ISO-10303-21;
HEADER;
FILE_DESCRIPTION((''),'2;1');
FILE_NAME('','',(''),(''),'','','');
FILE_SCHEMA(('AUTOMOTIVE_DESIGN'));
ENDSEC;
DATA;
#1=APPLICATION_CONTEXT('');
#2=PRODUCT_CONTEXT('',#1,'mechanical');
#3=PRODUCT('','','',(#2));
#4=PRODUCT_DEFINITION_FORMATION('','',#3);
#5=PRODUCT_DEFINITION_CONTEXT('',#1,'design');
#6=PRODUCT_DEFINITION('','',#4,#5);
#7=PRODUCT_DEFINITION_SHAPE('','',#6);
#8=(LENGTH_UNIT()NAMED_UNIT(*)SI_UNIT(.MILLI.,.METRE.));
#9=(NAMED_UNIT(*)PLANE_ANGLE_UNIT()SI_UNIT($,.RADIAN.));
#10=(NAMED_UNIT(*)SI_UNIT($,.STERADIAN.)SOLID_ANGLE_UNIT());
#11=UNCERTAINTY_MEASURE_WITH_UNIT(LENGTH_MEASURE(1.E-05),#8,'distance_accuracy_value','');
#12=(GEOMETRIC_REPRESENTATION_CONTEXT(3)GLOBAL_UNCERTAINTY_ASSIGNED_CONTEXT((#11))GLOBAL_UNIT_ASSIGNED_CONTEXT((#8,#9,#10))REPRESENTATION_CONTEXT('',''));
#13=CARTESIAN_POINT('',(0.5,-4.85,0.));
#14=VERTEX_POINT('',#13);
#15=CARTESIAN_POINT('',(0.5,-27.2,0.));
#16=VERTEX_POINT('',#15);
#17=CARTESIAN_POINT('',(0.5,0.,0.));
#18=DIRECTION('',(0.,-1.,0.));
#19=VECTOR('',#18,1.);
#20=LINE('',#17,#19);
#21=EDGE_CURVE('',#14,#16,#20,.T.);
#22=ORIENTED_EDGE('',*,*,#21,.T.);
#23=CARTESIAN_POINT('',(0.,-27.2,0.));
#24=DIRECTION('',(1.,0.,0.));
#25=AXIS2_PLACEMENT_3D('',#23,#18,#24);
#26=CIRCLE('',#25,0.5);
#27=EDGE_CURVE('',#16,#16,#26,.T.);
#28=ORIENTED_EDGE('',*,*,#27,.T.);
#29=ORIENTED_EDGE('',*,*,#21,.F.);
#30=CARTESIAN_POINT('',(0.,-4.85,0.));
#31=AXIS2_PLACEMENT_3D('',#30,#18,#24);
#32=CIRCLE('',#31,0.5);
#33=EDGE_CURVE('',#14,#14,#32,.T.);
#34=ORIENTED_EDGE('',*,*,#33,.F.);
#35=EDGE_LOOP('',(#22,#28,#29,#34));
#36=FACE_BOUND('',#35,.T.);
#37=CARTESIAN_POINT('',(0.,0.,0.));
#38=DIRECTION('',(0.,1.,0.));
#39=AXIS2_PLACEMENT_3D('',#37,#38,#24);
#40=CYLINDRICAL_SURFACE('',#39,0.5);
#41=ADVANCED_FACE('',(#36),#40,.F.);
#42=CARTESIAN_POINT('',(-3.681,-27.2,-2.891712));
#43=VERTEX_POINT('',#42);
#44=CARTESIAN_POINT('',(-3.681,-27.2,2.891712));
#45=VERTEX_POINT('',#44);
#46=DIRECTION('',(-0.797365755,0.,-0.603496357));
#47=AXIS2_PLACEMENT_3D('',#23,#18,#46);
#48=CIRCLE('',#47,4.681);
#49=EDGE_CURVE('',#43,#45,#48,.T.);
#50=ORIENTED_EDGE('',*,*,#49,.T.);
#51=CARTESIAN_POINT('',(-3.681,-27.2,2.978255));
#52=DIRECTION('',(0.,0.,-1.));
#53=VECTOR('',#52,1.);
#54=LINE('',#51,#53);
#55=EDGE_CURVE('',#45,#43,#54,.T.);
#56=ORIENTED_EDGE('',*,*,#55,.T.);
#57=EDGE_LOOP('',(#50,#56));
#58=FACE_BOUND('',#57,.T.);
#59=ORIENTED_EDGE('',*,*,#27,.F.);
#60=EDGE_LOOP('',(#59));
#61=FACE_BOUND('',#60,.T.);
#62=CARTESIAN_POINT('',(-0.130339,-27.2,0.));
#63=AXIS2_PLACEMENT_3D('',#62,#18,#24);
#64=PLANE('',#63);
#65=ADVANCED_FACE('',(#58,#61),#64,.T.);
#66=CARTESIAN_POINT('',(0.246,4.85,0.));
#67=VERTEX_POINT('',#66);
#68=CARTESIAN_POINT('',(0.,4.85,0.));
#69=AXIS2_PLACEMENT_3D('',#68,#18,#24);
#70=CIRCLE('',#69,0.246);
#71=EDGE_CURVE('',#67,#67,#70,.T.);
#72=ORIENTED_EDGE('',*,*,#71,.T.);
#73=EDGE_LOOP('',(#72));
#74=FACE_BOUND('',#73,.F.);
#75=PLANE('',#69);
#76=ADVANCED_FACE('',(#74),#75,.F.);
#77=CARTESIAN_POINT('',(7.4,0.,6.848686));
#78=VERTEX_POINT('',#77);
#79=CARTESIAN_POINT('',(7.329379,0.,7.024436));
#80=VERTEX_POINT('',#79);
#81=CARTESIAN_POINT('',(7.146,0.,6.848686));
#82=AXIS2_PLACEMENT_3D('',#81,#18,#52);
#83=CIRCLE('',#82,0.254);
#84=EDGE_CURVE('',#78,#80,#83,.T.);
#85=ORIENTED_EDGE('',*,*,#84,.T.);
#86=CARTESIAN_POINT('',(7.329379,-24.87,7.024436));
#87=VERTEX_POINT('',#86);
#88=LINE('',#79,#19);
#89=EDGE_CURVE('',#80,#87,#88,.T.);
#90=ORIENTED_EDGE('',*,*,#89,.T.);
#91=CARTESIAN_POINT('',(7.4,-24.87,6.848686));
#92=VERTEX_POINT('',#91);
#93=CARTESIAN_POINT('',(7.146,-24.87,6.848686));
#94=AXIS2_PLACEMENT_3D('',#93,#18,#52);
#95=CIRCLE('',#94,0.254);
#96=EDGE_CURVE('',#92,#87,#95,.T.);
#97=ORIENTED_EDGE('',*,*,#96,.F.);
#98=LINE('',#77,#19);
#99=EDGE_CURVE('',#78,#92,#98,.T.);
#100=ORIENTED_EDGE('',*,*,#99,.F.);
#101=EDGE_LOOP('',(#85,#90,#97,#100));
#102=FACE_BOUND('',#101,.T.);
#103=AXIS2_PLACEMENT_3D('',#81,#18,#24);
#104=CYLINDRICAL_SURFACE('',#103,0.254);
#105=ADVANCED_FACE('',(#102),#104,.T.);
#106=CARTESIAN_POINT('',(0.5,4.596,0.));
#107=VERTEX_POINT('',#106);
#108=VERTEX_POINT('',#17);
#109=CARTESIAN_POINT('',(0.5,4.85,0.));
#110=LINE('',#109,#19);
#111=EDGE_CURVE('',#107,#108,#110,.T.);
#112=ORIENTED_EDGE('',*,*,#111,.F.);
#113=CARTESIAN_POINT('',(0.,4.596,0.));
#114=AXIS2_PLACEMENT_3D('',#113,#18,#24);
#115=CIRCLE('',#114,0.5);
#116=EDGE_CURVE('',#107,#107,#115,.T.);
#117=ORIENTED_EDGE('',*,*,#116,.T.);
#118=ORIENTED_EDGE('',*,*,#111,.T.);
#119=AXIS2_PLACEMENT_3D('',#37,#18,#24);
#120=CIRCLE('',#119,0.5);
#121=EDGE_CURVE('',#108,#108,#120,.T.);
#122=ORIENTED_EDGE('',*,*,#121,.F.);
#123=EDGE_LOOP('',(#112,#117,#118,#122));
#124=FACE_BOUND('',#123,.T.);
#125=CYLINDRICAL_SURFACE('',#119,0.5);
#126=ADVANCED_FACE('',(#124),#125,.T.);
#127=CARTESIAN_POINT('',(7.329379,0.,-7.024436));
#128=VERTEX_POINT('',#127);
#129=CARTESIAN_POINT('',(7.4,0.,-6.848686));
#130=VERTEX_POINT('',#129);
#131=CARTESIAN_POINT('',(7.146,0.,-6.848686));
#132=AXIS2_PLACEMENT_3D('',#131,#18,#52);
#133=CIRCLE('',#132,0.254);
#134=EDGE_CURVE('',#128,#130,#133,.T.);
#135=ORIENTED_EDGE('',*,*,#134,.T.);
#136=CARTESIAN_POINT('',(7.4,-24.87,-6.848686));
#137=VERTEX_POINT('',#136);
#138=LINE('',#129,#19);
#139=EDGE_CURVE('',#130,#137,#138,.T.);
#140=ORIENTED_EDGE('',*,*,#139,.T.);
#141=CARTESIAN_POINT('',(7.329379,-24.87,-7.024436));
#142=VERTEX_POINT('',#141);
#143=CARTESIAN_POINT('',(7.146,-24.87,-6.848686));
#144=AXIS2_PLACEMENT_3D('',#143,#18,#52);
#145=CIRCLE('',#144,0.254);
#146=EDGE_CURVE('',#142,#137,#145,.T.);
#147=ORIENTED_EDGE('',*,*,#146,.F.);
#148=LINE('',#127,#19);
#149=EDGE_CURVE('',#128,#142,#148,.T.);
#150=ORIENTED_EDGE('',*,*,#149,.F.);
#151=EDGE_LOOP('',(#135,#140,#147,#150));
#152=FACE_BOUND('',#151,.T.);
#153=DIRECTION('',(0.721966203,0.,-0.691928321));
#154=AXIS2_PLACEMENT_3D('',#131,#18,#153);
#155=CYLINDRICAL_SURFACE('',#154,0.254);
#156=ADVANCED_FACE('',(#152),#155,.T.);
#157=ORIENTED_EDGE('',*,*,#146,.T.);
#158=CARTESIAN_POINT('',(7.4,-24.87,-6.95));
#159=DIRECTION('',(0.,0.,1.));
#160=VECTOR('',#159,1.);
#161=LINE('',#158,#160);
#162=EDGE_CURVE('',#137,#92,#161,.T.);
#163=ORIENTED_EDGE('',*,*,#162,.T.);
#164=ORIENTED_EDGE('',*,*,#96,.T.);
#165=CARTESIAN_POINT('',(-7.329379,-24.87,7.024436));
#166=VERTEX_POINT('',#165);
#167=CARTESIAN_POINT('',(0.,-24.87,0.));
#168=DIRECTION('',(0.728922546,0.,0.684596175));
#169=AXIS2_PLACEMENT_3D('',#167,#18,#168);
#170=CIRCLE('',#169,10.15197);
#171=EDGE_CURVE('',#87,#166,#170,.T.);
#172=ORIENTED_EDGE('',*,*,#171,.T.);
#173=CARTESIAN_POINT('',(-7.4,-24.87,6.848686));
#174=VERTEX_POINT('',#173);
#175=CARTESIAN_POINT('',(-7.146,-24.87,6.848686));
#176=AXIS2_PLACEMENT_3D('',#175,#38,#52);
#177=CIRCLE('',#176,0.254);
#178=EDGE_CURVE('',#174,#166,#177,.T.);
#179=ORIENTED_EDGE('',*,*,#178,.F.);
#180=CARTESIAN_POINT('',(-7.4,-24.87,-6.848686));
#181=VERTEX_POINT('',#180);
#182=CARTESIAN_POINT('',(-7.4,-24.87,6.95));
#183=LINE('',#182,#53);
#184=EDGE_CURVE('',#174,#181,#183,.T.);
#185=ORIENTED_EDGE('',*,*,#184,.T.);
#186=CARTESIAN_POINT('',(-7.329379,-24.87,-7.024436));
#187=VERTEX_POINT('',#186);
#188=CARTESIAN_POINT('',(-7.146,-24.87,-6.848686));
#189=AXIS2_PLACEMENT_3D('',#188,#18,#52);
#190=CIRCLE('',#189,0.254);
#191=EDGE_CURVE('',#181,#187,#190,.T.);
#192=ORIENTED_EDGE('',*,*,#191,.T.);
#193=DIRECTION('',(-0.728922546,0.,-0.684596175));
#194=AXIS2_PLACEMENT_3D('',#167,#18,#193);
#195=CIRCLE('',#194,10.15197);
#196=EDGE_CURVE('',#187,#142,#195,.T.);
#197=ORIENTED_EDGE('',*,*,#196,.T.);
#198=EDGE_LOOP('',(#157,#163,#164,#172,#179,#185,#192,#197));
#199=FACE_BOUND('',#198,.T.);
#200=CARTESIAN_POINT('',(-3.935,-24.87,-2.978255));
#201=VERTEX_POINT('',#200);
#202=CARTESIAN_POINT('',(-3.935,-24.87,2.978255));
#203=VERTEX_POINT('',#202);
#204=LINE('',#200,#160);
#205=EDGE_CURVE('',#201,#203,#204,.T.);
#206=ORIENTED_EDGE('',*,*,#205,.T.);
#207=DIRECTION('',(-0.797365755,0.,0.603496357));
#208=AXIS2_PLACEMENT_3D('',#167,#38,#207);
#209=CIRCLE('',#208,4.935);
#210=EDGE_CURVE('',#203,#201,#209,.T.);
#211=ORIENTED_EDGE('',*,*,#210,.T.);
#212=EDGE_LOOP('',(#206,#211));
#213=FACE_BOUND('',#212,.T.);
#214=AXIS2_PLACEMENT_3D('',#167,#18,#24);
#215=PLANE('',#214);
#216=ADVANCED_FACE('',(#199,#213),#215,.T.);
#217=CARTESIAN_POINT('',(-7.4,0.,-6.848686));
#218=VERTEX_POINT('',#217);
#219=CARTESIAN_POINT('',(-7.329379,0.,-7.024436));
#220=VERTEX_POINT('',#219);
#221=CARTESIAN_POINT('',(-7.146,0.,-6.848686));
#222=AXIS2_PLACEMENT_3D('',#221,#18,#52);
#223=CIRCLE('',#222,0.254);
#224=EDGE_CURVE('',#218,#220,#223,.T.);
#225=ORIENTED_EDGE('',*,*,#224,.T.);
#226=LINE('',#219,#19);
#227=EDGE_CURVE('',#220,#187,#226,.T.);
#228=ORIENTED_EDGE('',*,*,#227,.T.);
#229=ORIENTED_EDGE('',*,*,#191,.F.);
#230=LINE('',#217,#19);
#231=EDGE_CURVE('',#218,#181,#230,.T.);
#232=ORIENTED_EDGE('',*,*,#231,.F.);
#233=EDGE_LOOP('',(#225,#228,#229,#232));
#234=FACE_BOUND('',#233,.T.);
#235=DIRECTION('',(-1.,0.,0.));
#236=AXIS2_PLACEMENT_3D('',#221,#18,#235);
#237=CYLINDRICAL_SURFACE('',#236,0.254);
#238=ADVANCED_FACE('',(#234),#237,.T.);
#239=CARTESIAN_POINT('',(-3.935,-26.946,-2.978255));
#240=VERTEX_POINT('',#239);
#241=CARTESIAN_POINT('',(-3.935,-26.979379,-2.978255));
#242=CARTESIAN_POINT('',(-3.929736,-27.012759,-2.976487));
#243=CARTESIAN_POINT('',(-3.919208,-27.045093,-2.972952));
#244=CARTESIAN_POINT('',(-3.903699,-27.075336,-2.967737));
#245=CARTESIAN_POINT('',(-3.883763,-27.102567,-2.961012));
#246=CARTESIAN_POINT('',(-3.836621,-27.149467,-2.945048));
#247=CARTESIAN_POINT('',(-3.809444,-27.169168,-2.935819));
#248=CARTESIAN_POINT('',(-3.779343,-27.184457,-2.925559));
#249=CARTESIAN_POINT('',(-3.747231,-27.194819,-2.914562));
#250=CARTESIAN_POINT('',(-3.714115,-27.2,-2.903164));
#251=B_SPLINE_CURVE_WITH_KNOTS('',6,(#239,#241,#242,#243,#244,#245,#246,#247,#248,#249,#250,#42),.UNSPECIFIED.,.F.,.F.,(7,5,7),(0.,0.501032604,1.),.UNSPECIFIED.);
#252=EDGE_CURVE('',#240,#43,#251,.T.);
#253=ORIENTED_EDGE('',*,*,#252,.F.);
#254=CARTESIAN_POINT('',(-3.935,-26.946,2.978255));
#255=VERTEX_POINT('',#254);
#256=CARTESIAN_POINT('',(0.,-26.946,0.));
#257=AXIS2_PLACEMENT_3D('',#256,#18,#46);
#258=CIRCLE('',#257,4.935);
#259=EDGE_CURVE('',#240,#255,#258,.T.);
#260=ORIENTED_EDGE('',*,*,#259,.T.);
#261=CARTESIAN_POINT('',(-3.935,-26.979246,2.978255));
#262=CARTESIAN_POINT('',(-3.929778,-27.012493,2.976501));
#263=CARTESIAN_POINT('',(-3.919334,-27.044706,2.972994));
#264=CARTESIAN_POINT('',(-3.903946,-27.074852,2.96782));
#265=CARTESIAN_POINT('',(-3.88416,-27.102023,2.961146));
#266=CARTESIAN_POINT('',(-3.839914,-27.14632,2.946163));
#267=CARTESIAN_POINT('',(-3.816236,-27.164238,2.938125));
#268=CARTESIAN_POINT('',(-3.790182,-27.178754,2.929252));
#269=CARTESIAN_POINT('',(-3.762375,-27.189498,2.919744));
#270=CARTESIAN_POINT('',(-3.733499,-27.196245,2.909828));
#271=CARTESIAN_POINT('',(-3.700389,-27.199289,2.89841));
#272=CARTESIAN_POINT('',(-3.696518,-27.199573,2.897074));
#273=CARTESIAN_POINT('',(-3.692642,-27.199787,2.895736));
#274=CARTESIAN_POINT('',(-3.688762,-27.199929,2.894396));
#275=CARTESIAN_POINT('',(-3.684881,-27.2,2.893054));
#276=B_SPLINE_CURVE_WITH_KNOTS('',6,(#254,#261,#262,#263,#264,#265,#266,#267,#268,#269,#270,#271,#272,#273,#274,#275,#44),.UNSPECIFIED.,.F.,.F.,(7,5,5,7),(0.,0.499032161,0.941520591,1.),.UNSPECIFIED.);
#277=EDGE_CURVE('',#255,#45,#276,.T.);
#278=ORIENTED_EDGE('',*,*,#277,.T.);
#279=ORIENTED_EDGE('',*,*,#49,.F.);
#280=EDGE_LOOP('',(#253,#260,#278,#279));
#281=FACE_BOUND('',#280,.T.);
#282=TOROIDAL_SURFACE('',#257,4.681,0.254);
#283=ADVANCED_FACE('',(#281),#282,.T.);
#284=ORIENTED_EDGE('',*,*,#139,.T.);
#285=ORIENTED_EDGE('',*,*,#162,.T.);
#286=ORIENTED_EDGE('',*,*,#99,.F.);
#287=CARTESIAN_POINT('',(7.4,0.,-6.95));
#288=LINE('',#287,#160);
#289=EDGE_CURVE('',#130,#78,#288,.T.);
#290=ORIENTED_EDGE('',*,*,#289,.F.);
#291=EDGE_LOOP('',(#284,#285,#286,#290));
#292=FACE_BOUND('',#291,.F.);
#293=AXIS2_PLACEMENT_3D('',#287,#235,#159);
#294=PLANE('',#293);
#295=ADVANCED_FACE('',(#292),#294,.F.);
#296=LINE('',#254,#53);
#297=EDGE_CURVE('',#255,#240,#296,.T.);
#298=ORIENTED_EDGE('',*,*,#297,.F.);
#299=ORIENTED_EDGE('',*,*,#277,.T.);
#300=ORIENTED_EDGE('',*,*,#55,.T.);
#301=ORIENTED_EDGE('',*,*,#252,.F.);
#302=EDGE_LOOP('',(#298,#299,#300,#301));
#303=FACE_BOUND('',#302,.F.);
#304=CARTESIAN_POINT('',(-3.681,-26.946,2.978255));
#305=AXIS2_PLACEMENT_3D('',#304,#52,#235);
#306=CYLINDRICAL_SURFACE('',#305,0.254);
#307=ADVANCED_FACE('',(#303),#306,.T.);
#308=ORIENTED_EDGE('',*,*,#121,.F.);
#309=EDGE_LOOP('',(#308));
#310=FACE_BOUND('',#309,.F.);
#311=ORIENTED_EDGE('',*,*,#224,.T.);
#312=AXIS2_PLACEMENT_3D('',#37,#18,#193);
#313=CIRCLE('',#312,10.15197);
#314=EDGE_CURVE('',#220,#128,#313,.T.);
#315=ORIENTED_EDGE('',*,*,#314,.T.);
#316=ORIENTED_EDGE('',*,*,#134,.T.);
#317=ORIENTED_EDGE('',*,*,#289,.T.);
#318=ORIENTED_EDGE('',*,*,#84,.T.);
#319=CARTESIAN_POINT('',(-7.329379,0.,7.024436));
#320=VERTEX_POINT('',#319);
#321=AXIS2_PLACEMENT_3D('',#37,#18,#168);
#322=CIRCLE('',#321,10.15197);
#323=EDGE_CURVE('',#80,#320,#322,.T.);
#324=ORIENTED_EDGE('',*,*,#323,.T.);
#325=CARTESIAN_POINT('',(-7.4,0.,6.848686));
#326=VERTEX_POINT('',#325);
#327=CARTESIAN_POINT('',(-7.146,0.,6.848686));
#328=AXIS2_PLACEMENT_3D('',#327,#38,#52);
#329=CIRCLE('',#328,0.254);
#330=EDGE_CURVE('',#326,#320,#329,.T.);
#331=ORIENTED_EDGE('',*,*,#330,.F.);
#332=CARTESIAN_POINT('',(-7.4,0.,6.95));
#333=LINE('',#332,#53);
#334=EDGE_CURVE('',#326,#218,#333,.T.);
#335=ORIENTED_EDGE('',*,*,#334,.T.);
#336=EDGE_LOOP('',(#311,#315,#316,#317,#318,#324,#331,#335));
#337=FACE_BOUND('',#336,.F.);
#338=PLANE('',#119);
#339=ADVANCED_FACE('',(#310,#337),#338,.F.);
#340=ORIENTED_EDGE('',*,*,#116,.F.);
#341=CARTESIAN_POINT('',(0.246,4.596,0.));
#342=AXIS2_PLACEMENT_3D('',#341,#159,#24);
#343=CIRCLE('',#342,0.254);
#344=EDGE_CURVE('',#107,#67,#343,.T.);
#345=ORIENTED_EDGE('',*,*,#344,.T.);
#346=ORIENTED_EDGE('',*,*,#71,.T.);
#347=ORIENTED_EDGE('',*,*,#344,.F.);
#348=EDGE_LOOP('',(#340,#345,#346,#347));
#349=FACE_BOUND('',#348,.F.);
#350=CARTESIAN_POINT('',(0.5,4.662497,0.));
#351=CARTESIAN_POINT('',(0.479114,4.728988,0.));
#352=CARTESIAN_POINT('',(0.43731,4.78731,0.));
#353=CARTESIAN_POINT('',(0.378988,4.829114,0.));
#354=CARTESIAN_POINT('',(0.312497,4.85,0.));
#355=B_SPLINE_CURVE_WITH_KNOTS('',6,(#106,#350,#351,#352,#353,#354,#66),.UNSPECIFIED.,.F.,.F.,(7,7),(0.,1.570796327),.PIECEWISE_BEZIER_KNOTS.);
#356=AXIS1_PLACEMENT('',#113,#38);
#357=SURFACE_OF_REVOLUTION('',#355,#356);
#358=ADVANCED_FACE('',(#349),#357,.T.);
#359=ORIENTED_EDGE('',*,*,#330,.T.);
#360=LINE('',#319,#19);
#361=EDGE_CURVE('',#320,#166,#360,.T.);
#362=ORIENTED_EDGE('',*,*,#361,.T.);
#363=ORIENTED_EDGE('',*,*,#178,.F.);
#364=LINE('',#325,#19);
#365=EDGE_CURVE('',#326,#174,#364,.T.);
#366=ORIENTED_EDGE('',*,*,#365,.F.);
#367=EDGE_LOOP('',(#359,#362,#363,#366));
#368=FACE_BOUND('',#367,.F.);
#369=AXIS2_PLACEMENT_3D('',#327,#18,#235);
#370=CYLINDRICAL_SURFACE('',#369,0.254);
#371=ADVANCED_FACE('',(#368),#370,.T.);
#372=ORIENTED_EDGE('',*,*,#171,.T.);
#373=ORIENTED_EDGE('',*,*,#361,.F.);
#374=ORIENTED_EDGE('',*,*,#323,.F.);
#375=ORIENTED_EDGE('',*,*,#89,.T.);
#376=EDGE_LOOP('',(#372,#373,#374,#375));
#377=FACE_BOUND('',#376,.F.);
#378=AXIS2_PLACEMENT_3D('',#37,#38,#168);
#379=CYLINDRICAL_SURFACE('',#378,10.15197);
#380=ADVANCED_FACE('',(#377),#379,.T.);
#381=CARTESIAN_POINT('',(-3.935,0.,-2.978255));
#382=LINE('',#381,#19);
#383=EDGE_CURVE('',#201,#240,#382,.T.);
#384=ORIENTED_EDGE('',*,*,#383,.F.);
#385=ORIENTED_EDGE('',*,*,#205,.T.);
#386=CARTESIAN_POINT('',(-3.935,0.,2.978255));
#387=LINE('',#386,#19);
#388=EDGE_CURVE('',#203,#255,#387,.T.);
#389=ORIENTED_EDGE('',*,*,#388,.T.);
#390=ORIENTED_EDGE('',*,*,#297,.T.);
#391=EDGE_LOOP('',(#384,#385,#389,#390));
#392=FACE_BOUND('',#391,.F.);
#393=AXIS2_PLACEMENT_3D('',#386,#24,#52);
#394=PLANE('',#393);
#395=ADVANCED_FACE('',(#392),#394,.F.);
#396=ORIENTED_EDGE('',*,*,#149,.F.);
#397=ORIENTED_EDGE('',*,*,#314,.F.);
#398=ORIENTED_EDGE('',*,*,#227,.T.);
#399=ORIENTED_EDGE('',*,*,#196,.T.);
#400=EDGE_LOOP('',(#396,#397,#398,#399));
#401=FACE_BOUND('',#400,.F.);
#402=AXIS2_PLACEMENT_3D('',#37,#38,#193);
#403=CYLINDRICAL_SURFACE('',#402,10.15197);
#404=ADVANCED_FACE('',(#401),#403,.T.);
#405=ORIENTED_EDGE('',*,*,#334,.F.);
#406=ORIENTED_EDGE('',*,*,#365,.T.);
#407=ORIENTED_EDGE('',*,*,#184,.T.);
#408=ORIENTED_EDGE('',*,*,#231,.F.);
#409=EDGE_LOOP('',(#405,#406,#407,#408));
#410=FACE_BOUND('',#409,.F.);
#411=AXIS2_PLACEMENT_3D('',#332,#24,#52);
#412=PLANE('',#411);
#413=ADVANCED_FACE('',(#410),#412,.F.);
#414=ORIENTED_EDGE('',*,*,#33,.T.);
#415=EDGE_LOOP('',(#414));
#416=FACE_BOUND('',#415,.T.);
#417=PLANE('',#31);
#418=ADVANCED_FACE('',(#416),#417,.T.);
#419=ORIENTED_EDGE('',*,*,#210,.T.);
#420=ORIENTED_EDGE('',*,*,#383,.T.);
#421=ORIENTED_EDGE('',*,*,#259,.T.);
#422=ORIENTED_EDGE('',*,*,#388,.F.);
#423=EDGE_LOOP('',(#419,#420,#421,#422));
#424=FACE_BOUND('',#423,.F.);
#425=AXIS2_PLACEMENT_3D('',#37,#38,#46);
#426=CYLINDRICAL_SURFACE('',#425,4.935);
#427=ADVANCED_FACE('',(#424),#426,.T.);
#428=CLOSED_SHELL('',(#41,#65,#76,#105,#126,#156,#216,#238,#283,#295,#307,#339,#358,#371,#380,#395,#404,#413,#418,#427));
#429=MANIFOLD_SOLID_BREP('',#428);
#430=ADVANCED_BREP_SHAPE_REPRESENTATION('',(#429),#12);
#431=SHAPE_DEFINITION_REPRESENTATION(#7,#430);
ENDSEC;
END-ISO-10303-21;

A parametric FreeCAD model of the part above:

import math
import FreeCAD as App
import Part
import Sketcher
Q = App.Units.Quantity


def edges_at(feature, points):
    """Names of the edges that pass closest to the given points."""
    edges = feature.Shape.Edges
    near = lambda p: min(range(len(edges)), key=lambda i: edges[i].distToShape(Part.Vertex(*p))[0])
    return sorted({f"Edge{near(p) + 1}" for p in points})

doc = App.newDocument("Part")
body = doc.addObject("PartDesign::Body", "Body")

sketch1 = body.newObject("Sketcher::SketchObject", "Sketch")
sketch1.AttachmentSupport = (doc.getObject("XZ_Plane"), [""])
sketch1.MapMode = "FlatFace"
sketch1.addGeometry(Part.LineSegment(App.Vector(-7.4, 7, 0), App.Vector(-7.4, -7, 0)), False)
sketch1.addGeometry(Part.ArcOfCircle(Part.Circle(App.Vector(0, 0, 0), App.Vector(0, 0, 1), 10.2), math.radians(-137), math.radians(-43)), False)
sketch1.addGeometry(Part.LineSegment(App.Vector(7.4, -7, 0), App.Vector(7.4, 7, 0)), False)
sketch1.addGeometry(Part.ArcOfCircle(Part.Circle(App.Vector(0, 0, 0), App.Vector(0, 0, 1), 10.2), math.radians(43), math.radians(137)), False)
sketch1.addGeometry(Part.LineSegment(App.Vector(-3.9, -3, 0), App.Vector(-3.9, 3, 0)), False)
sketch1.addGeometry(Part.ArcOfCircle(Part.Circle(App.Vector(0, 0, 0), App.Vector(0, 0, 1), 4.9), math.radians(-143), math.radians(143)), False)
sketch1.addConstraint(Sketcher.Constraint("Coincident", 0, 2, 1, 1))
sketch1.addConstraint(Sketcher.Constraint("Coincident", 1, 2, 2, 1))
sketch1.addConstraint(Sketcher.Constraint("Coincident", 2, 2, 3, 1))
sketch1.addConstraint(Sketcher.Constraint("Coincident", 3, 2, 0, 1))
sketch1.addConstraint(Sketcher.Constraint("Coincident", 4, 1, 5, 1))
sketch1.addConstraint(Sketcher.Constraint("Coincident", 5, 2, 4, 2))
sketch1.addConstraint(Sketcher.Constraint("Vertical", 0))
sketch1.addConstraint(Sketcher.Constraint("Vertical", 2))
sketch1.addConstraint(Sketcher.Constraint("Vertical", 4))
sketch1.addConstraint(Sketcher.Constraint("Coincident", 1, 3, -1, 1))
sketch1.addConstraint(Sketcher.Constraint("Coincident", 3, 3, -1, 1))
sketch1.addConstraint(Sketcher.Constraint("Coincident", 5, 3, -1, 1))
sketch1.addConstraint(Sketcher.Constraint("Equal", 1, 3))
sketch1.addConstraint(Sketcher.Constraint("Horizontal", 0, 2, 1, 2))
sketch1.addConstraint(Sketcher.Constraint("DistanceY", 0, 2, 0, 1, Q("13.9 mm")))
sketch1.addConstraint(Sketcher.Constraint("Radius", 5, Q("4.935 mm")))
sketch1.addConstraint(Sketcher.Constraint("DistanceX", 0, 2, -1, 1, Q("7.4 mm")))
sketch1.addConstraint(Sketcher.Constraint("DistanceX", 4, 1, -1, 1, Q("3.935 mm")))
pad1 = body.newObject("PartDesign::Pad", "Pad")
pad1.Profile = sketch1
pad1.Length = 24.87

sketch2 = body.newObject("Sketcher::SketchObject", "Sketch001")
sketch2.AttachmentSupport = (doc.getObject("XZ_Plane"), [""])
sketch2.MapMode = "FlatFace"
sketch2.addGeometry(Part.LineSegment(App.Vector(-3.9, 3, 0), App.Vector(-3.9, -3, 0)), False)
sketch2.addGeometry(Part.ArcOfCircle(Part.Circle(App.Vector(0, 0, 0), App.Vector(0, 0, 1), 4.9), math.radians(-143), math.radians(143)), False)
sketch2.addGeometry(Part.Circle(App.Vector(0, 0, 0), App.Vector(0, 0, 1), 0.5), False)
sketch2.addConstraint(Sketcher.Constraint("Coincident", 0, 1, 1, 2))
sketch2.addConstraint(Sketcher.Constraint("Coincident", 1, 1, 0, 2))
sketch2.addConstraint(Sketcher.Constraint("Vertical", 0))
sketch2.addConstraint(Sketcher.Constraint("Coincident", 1, 3, -1, 1))
sketch2.addConstraint(Sketcher.Constraint("Coincident", 2, 3, -1, 1))
sketch2.addConstraint(Sketcher.Constraint("Diameter", 2, Q("1 mm")))
sketch2.addConstraint(Sketcher.Constraint("Radius", 1, Q("4.935 mm")))
sketch2.addConstraint(Sketcher.Constraint("DistanceX", 0, 1, -1, 1, Q("3.935 mm")))
pad2 = body.newObject("PartDesign::Pad", "Pad001")
pad2.Profile = sketch2
pad2.Length = 27.2

sketch3 = body.newObject("Sketcher::SketchObject", "Sketch002")
sketch3.AttachmentSupport = (doc.getObject("XZ_Plane"), [""])
sketch3.MapMode = "FlatFace"
sketch3.addGeometry(Part.Circle(App.Vector(0, 0, 0), App.Vector(0, 0, 1), 0.5), False)
sketch3.addConstraint(Sketcher.Constraint("Coincident", 0, 3, -1, 1))
sketch3.addConstraint(Sketcher.Constraint("Diameter", 0, Q("1 mm")))
pad3 = body.newObject("PartDesign::Pad", "Pad002")
pad3.Profile = sketch3
pad3.Length = 9.7
pad3.Midplane = True
doc.recompute()

fillet = body.newObject("PartDesign::Fillet", "Fillet")
fillet.Base = (pad3, edges_at(pad3, [
    (-3.935, -27.2, 0),
    (4.935, -27.2, 0),
    (7.4, -12.435, -6.95),
    (7.4, -12.435, 6.95),
    (-7.4, -12.435, 6.95),
    (-7.4, -12.435, -6.95),
    (-0.5, 4.85, 0),
]))
fillet.Radius = 0.254

doc.recompute()
